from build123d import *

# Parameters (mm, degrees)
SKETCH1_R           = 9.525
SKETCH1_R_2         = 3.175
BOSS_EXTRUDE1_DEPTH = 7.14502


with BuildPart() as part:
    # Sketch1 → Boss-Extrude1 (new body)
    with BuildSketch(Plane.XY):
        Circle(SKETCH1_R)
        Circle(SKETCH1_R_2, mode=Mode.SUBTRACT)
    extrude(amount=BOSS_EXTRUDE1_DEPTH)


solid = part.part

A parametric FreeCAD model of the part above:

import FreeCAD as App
import Part
import Sketcher
Q = App.Units.Quantity

doc = App.newDocument("Part")
body = doc.addObject("PartDesign::Body", "Body")

# Sketch on XY plane
sketch1 = body.newObject("Sketcher::SketchObject", "Sketch")
sketch1.AttachmentSupport = (doc.getObject("XY_Plane"), [""])
sketch1.MapMode = "FlatFace"
sketch1.addGeometry([
    Part.Circle(App.Vector(0, 0, 0), App.Vector(0, 0, 1), 9.5),
    Part.Circle(App.Vector(0, 0, 0), App.Vector(0, 0, 1), 3.2),
], False)
sketch1.addConstraint([
    Sketcher.Constraint("Coincident", 0, 3, -1, 1),
    Sketcher.Constraint("Coincident", 1, 3, -1, 1),
    Sketcher.Constraint("Diameter", 0, Q("0.75 in")),
    Sketcher.Constraint("Diameter", 1, Q("0.25 in")),
])
pad1 = body.newObject("PartDesign::Pad", "Pad")
pad1.Profile = sketch1
pad1.Length = Q("0.2813 in")

doc.recompute()
